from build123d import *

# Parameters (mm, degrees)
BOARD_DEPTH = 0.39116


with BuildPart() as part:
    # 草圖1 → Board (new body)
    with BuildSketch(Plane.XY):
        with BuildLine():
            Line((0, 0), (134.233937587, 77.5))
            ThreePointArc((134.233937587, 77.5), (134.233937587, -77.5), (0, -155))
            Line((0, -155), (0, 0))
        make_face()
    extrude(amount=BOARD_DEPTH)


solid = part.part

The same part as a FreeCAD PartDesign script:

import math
import FreeCAD as App
import Part
import Sketcher
Q = App.Units.Quantity

doc = App.newDocument("Part")
body = doc.addObject("PartDesign::Body", "Body")

# Sketch on XY plane
sketch1 = body.newObject("Sketcher::SketchObject", "Sketch")
sketch1.AttachmentSupport = (doc.getObject("XY_Plane"), [""])
sketch1.MapMode = "FlatFace"
sketch1.addGeometry([
    Part.LineSegment(App.Vector(134, 78, 0), App.Vector(0, 0, 0)),
    Part.LineSegment(App.Vector(0, 0, 0), App.Vector(0, -155, 0)),
    Part.ArcOfCircle(Part.Circle(App.Vector(0, 0, 0), App.Vector(0, 0, 1), 155), math.radians(-90), math.radians(30)),
], False)
sketch1.addConstraint([
    Sketcher.Constraint("Coincident", 0, 2, 1, 1),
    Sketcher.Constraint("Coincident", 1, 2, 2, 1),
    Sketcher.Constraint("Coincident", 2, 2, 0, 1),
    Sketcher.Constraint("Vertical", 1),
    Sketcher.Constraint("Coincident", 2, 3, -1, 1),
    Sketcher.Constraint("Coincident", 0, 2, -1, 1),
    Sketcher.Constraint("Radius", 2, 155.0),
    Sketcher.Constraint("Angle", 0, Q("-150 deg")),
])
pad1 = body.newObject("PartDesign::Pad", "Pad")
pad1.Profile = sketch1
pad1.Length = 0.39116

doc.recompute()
